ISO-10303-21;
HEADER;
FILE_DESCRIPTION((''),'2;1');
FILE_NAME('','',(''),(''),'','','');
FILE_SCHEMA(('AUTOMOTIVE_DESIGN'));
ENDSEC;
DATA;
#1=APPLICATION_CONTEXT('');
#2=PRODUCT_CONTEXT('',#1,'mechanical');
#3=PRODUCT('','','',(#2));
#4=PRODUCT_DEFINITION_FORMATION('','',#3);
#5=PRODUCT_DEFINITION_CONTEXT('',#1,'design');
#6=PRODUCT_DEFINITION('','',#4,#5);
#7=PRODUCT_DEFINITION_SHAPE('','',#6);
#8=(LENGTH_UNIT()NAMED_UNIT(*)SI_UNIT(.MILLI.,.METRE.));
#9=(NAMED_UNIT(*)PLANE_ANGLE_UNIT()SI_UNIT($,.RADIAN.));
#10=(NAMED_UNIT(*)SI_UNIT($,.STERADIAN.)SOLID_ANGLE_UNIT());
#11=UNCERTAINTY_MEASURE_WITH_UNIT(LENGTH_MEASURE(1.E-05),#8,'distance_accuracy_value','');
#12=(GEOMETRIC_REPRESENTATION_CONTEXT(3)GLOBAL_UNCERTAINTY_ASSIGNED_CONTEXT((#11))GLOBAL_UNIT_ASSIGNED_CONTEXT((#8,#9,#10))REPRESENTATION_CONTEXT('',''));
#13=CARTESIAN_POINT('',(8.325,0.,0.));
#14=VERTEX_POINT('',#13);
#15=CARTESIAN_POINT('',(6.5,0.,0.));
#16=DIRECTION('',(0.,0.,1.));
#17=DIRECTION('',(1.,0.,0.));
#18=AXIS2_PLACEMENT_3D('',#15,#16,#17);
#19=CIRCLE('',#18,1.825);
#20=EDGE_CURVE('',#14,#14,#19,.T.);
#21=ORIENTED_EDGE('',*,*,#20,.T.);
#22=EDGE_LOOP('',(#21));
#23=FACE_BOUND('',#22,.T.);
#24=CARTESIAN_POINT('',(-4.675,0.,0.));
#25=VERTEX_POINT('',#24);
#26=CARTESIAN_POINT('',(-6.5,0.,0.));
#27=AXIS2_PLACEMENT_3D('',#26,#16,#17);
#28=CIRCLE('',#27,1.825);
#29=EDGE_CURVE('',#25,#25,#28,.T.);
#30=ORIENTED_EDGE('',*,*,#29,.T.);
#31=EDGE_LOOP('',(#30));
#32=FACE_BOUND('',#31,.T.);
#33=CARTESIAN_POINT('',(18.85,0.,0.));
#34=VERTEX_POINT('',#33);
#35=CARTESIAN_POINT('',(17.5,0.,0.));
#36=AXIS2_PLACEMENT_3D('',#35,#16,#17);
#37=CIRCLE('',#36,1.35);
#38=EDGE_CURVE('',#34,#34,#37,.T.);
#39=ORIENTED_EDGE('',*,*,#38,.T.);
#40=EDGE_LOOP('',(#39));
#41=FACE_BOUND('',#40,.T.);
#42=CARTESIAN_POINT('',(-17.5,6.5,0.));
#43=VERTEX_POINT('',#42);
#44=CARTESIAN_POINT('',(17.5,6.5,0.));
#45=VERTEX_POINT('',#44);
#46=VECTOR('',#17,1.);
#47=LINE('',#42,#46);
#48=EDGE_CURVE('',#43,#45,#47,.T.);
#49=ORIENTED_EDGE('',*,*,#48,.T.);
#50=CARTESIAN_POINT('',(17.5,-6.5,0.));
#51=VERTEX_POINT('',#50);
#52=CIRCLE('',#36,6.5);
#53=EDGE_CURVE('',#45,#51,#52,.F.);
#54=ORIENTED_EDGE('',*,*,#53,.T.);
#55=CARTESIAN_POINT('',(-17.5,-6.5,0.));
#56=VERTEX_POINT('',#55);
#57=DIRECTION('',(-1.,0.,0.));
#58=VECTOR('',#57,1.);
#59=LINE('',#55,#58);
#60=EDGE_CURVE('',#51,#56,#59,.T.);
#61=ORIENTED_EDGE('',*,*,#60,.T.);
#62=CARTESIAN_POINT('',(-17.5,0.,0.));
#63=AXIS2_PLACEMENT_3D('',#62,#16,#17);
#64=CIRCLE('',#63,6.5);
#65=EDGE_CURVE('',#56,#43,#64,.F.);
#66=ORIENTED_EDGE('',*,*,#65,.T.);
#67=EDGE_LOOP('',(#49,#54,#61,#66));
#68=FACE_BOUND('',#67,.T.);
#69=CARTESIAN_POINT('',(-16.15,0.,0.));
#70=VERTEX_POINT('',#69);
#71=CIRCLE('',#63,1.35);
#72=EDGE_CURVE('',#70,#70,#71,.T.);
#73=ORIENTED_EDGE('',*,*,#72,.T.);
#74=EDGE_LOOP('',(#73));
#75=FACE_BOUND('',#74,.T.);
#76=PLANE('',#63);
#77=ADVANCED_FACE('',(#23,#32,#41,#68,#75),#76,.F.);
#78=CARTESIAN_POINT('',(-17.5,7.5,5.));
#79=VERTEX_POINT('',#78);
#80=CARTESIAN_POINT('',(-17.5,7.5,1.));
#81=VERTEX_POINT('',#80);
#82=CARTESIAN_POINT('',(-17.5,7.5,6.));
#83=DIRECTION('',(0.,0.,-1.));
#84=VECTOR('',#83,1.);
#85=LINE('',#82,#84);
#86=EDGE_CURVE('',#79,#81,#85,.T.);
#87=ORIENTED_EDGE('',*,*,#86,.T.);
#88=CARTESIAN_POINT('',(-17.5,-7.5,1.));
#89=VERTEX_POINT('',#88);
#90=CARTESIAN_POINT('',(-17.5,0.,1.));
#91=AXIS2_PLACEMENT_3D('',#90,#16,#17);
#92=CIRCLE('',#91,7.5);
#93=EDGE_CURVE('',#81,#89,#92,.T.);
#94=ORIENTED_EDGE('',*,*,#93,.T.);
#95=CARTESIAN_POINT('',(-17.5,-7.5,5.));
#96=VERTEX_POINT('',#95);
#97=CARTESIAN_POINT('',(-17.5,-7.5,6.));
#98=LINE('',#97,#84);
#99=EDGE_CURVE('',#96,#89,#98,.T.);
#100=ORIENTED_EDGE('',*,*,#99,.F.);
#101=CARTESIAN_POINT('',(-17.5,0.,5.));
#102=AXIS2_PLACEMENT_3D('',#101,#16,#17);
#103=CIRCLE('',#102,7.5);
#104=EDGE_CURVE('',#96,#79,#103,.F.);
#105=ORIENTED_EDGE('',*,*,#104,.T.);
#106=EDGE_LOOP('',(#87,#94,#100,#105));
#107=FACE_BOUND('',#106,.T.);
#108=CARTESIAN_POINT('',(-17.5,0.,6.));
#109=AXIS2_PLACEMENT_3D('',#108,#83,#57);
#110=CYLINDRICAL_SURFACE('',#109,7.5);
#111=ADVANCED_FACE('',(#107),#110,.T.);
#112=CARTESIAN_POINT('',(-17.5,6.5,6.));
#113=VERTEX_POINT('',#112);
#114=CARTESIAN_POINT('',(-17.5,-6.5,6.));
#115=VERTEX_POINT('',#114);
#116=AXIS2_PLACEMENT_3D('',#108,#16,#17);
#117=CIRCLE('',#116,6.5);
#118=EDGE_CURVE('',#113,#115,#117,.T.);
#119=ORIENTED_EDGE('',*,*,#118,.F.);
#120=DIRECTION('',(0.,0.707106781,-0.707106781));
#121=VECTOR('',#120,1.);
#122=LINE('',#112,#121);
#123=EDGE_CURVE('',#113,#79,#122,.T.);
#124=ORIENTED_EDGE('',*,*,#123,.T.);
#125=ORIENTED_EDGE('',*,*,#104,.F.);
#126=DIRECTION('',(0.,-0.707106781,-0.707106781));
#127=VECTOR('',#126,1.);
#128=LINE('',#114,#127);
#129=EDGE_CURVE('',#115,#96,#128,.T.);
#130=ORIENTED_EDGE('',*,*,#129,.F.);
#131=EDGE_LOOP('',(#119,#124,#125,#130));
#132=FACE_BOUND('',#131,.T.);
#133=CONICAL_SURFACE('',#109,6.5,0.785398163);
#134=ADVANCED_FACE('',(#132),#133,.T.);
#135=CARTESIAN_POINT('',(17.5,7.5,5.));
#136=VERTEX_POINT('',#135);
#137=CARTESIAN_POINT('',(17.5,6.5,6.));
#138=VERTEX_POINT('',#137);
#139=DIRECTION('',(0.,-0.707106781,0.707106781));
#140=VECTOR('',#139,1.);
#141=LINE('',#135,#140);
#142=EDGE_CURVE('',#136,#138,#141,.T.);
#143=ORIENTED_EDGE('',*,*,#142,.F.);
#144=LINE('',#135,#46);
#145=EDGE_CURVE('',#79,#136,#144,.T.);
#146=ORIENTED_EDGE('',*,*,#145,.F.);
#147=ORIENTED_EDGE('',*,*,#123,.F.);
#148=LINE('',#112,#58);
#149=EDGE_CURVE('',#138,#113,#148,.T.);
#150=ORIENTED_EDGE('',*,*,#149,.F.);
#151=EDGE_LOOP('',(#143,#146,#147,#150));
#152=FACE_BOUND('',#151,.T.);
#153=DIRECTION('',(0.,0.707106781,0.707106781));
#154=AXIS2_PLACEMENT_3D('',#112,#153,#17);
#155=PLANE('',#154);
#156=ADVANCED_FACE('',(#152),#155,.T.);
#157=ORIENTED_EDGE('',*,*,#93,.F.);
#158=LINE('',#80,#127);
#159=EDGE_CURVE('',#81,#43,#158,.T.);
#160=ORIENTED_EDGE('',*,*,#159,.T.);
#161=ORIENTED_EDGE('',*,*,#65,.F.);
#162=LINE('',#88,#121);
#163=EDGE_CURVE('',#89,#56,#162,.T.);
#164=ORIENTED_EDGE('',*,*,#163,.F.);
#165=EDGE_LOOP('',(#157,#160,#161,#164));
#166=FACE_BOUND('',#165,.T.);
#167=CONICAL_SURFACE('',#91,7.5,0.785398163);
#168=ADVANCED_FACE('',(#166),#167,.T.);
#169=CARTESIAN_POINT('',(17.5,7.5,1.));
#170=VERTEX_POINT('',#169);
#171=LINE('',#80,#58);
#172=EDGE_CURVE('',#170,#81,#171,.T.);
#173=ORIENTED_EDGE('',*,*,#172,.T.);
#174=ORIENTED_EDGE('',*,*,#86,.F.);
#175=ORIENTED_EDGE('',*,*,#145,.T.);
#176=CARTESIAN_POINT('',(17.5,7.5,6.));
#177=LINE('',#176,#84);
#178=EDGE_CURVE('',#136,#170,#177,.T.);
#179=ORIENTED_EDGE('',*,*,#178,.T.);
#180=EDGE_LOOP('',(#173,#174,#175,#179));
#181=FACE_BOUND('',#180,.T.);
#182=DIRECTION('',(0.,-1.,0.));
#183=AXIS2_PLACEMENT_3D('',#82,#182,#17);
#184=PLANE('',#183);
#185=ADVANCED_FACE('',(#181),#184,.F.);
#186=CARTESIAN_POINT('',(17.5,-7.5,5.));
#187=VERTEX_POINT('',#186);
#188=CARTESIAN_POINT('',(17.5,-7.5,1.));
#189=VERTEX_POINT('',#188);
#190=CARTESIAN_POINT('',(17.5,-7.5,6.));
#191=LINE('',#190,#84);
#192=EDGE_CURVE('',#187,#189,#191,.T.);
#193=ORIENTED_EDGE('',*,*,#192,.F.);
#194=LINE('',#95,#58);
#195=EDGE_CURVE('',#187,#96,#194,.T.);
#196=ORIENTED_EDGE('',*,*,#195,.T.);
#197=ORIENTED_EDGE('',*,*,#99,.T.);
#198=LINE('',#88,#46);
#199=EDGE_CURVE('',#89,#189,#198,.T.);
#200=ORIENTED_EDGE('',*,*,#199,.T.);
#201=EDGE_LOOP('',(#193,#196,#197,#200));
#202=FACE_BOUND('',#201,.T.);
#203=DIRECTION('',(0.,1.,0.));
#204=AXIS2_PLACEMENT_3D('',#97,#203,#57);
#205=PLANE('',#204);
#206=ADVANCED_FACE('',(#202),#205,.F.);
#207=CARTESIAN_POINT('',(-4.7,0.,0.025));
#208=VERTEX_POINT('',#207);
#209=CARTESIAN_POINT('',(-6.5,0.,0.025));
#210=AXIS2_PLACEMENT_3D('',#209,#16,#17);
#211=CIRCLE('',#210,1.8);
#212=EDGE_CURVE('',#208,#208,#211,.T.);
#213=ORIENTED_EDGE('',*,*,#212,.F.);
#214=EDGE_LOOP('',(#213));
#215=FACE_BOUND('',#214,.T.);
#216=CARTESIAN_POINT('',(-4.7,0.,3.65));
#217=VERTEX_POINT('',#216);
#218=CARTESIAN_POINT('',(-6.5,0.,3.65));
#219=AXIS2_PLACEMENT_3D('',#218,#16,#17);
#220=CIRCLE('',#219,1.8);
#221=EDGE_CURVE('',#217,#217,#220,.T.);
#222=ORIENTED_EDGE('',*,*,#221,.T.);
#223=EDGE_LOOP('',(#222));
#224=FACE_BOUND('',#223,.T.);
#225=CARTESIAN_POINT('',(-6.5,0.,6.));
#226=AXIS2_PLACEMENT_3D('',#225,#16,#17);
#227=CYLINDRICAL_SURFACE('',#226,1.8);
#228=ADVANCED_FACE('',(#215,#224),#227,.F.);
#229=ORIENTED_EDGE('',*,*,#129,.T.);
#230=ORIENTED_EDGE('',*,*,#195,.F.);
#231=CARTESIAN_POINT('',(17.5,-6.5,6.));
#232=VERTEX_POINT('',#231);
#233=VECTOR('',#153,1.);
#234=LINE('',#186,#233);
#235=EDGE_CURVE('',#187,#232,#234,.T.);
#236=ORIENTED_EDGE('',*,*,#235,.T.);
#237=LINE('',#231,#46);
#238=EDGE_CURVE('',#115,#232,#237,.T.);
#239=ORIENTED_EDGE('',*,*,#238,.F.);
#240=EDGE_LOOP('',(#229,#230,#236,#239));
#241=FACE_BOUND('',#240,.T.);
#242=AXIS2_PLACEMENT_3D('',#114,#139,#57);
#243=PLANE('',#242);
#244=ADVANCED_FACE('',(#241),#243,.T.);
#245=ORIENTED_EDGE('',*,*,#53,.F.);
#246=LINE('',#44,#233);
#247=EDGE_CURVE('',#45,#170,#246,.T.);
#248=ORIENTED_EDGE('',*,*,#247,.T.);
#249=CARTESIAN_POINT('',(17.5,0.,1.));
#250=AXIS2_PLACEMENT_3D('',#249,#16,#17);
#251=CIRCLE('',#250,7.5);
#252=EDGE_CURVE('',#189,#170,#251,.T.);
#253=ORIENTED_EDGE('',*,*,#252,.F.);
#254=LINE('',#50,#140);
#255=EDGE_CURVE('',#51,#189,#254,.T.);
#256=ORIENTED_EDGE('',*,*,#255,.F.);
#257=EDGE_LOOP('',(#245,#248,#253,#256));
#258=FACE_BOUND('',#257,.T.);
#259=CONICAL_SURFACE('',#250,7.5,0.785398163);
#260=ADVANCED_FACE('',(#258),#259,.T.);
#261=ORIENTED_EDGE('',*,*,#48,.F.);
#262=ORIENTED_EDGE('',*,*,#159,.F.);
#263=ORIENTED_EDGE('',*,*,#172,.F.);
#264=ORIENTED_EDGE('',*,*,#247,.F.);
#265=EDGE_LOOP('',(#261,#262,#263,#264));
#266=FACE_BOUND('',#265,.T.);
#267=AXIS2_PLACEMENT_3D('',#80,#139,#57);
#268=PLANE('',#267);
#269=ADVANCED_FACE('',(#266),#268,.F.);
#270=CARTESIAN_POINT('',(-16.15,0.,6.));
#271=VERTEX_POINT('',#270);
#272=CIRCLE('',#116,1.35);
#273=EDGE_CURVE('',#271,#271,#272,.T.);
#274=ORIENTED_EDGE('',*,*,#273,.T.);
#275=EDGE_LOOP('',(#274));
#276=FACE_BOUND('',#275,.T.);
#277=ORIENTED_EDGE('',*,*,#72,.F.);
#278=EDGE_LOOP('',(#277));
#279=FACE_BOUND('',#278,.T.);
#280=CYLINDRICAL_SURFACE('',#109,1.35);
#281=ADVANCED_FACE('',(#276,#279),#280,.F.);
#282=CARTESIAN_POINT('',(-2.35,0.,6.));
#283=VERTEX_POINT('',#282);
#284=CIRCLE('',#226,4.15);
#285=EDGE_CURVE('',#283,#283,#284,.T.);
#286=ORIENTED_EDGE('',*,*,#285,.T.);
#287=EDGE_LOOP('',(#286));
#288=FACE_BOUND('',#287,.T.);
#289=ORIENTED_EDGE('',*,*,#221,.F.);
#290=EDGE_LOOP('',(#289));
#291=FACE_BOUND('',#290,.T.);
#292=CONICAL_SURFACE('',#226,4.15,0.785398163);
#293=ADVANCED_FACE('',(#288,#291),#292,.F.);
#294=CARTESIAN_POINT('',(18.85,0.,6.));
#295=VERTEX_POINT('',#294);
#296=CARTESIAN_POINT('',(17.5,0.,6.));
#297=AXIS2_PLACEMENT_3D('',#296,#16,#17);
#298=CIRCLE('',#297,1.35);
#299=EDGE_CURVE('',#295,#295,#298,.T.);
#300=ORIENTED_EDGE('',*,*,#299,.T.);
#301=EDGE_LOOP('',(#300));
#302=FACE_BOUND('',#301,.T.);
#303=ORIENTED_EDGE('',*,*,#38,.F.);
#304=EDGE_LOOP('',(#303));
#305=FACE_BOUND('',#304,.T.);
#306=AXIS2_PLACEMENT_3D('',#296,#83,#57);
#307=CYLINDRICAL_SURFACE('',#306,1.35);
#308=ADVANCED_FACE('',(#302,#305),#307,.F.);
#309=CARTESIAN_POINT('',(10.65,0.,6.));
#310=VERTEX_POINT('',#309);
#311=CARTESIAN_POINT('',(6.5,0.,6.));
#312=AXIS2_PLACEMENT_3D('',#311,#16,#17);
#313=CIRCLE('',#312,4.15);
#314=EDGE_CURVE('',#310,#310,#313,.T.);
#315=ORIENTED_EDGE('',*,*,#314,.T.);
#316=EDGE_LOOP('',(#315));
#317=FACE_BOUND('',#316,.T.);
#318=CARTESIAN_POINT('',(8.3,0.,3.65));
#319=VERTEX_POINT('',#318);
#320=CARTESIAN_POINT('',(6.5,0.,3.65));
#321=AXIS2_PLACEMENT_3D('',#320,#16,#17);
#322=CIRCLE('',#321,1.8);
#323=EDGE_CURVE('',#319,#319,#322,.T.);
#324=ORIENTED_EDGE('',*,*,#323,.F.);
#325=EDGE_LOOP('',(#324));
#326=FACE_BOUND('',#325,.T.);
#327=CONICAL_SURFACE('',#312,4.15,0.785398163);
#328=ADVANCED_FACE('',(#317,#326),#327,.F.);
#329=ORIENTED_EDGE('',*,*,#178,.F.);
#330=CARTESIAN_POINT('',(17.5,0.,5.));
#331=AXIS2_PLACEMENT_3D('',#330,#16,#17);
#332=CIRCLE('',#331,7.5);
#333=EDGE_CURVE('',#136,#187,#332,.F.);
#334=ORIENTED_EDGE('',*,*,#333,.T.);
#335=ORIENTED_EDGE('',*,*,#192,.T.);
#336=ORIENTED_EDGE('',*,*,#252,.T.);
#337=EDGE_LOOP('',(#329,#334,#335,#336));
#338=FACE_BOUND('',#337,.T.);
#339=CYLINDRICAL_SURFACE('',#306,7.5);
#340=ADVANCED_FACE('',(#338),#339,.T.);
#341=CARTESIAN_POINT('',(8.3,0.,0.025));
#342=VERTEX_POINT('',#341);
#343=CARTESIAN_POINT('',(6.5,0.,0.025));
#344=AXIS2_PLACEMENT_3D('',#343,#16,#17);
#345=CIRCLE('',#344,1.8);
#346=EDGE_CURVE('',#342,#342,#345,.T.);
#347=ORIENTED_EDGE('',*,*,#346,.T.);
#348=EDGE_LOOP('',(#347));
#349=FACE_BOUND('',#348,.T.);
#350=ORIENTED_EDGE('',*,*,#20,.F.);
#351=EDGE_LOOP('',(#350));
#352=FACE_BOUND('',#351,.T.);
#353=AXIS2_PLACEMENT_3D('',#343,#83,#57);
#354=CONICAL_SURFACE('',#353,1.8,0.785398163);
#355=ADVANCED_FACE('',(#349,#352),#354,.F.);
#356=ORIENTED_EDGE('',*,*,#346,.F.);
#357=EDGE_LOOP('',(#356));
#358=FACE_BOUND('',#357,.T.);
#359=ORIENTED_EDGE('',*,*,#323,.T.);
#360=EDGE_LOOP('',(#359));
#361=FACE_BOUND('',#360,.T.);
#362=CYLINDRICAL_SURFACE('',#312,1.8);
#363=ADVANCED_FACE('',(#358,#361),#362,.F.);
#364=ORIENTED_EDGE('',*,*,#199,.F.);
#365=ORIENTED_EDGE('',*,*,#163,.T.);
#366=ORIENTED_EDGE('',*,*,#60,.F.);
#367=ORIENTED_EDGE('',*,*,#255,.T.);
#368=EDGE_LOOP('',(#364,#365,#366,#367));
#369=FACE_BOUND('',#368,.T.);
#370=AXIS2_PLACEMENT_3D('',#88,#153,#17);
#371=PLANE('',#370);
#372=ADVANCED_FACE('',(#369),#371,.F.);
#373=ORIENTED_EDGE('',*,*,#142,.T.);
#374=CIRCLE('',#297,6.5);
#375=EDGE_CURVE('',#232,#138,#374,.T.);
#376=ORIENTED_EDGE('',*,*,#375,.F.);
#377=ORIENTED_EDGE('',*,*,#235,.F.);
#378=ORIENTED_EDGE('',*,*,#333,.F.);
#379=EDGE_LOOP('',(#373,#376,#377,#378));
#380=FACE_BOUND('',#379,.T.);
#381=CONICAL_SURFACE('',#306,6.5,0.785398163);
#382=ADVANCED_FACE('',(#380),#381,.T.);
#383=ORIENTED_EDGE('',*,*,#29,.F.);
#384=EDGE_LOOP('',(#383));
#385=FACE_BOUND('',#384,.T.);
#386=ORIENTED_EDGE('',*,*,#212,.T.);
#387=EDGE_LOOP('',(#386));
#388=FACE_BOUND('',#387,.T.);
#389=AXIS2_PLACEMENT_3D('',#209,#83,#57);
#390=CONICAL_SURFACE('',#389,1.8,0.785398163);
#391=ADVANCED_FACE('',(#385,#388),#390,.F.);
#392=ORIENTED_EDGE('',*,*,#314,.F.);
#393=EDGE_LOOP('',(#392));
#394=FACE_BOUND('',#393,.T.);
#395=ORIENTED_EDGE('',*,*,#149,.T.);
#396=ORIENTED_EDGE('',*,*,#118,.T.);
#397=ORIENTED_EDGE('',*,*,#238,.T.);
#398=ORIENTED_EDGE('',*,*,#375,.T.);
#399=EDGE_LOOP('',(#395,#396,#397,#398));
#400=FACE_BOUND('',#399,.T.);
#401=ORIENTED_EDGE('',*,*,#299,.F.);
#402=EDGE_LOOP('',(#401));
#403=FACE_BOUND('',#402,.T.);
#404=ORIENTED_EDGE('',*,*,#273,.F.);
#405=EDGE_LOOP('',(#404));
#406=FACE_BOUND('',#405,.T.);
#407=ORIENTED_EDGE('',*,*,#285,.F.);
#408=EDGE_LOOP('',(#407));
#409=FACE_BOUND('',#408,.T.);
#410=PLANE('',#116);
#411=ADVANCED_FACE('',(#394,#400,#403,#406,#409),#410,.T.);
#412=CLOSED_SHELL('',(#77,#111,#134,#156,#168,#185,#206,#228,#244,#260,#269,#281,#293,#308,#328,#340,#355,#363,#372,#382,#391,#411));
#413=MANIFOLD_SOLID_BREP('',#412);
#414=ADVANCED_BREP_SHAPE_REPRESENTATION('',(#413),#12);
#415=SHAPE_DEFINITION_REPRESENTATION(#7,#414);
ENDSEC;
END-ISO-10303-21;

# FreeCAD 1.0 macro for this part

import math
import FreeCAD as App
import Part
import Sketcher

V = App.Vector
Q = App.Units.Quantity


def edges_at(feature, points):
    """Names of the edges that pass closest to the given points."""
    edges = feature.Shape.Edges
    near = lambda p: min(range(len(edges)), key=lambda i: edges[i].distToShape(Part.Vertex(*p))[0])
    return sorted({f"Edge{near(p) + 1}" for p in points})


def add_polygon(sketch, points):
    """Adds a closed chain of lines whose ends are joined by coincident constraints."""
    first, n = sketch.GeometryCount, len(points)
    for a, b in zip(points, points[1:] + points[:1]):
        sketch.addGeometry(Part.LineSegment(App.Vector(*a, 0), App.Vector(*b, 0)), False)
    for i in range(n):
        sketch.addConstraint(Sketcher.Constraint("Coincident", first + i, 2, first + (i + 1) % n, 1))

doc = App.newDocument("Part")
body = doc.addObject("PartDesign::Body", "Body")

# Sketch on XY plane
sketch1 = body.newObject("Sketcher::SketchObject", "Sketch")
sketch1.AttachmentSupport = (doc.getObject("XY_Plane"), [""])
sketch1.MapMode = "FlatFace"
sketch1.addGeometry([
    Part.LineSegment(V(17.5, 7.5, 0), V(-17.5, 7.5, 0)),  # 0
    Part.ArcOfCircle(Part.Circle(V(-17.5, 0, 0), V(0, 0, 1), 7.5), math.radians(90), math.radians(270)),  # 1
    Part.LineSegment(V(-17.5, -7.5, 0), V(17.5, -7.5, 0)),  # 2
    Part.ArcOfCircle(Part.Circle(V(17.5, 0, 0), V(0, 0, 1), 7.5), math.radians(-90), math.radians(90)),  # 3
    Part.Circle(V(17.5, 0, 0), V(0, 0, 1), 1.4),  # 4
    Part.Circle(V(-17.5, 0, 0), V(0, 0, 1), 1.4),  # 5
], False)
sketch1.addConstraint([
    Sketcher.Constraint("Tangent", 0, 2, 1, 1),
    Sketcher.Constraint("Tangent", 1, 2, 2, 1),
    Sketcher.Constraint("Tangent", 2, 2, 3, 1),
    Sketcher.Constraint("Tangent", 3, 2, 0, 1),
    Sketcher.Constraint("Horizontal", 0),
    Sketcher.Constraint("Horizontal", 2),
    Sketcher.Constraint("Coincident", 4, 3, 3, 3),
    Sketcher.Constraint("Coincident", 5, 3, 1, 3),
    Sketcher.Constraint("Equal", 4, 5),
    Sketcher.Constraint("Symmetric", 1, 3, 3, 3, -1, 1),
    Sketcher.Constraint("Diameter", 4, Q("2.7 mm")),
    Sketcher.Constraint("Radius", 1, Q("7.5 mm")),
    Sketcher.Constraint("DistanceX", 0, 2, 0, 1, Q("35 mm")),
])
pad1 = body.newObject("PartDesign::Pad", "Pad")
pad1.Profile = sketch1
pad1.Length = 6
doc.recompute()

chamfer = body.newObject("PartDesign::Chamfer", "Chamfer")
chamfer.Base = (pad1, edges_at(pad1, [
    (25, 0, 6),
    (0, 7.5, 6),
    (-25, 0, 6),
    (0, 7.5, 0),
    (25, 0, 0),
    (0, -7.5, 0),
    (-25, 0, 0),
    (0, -7.5, 6),
]))
chamfer.Size = 1

# Sketch on YZ plane
sketch2 = body.newObject("Sketcher::SketchObject", "Sketch001")
sketch2.AttachmentSupport = (doc.getObject("YZ_Plane"), [""])
sketch2.MapMode = "FlatFace"
sketch2.AttachmentOffset = App.Placement(V(0, 0, 6.5), App.Rotation())
add_polygon(sketch2, [(0, 0), (0, 6), (-4.15, 6), (-1.8, 3.65), (-1.8, 0.025), (-1.825, 0)])  # lines 0-5
sketch2.addConstraint([
    Sketcher.Constraint("Vertical", 0),
    Sketcher.Constraint("Horizontal", 1),
    Sketcher.Constraint("Vertical", 3),
    Sketcher.Constraint("Horizontal", 5),
    Sketcher.Constraint("Coincident", 5, 2, -1, 1),
    Sketcher.Constraint("Perpendicular", 2, 4),
    Sketcher.Constraint("DistanceY", 0, 1, 0, 2, Q("6 mm")),
    Sketcher.Constraint("Angle", 2, Q("-45 deg")),
    Sketcher.Constraint("DistanceX", 1, 2, 1, 1, Q("4.15 mm")),
    Sketcher.Constraint("DistanceX", 2, 2, -1, 1, Q("1.8 mm")),
    Sketcher.Constraint("DistanceX", 5, 1, 5, 2, Q("1.825 mm")),
])
groove = body.newObject("PartDesign::Groove", "Groove")
groove.Profile = sketch2
groove.ReferenceAxis = (sketch2, ["V_Axis"])
groove.Angle = 360
doc.recompute()

linearpattern = body.newObject("PartDesign::LinearPattern", "LinearPattern")
linearpattern.Originals = [groove]
linearpattern.Direction = (doc.getObject("X_Axis"), [""])
linearpattern.Mode = "offset"
linearpattern.Offset = 13
linearpattern.Occurrences = 2
linearpattern.Reversed = True
body.Tip = linearpattern

doc.recompute()
